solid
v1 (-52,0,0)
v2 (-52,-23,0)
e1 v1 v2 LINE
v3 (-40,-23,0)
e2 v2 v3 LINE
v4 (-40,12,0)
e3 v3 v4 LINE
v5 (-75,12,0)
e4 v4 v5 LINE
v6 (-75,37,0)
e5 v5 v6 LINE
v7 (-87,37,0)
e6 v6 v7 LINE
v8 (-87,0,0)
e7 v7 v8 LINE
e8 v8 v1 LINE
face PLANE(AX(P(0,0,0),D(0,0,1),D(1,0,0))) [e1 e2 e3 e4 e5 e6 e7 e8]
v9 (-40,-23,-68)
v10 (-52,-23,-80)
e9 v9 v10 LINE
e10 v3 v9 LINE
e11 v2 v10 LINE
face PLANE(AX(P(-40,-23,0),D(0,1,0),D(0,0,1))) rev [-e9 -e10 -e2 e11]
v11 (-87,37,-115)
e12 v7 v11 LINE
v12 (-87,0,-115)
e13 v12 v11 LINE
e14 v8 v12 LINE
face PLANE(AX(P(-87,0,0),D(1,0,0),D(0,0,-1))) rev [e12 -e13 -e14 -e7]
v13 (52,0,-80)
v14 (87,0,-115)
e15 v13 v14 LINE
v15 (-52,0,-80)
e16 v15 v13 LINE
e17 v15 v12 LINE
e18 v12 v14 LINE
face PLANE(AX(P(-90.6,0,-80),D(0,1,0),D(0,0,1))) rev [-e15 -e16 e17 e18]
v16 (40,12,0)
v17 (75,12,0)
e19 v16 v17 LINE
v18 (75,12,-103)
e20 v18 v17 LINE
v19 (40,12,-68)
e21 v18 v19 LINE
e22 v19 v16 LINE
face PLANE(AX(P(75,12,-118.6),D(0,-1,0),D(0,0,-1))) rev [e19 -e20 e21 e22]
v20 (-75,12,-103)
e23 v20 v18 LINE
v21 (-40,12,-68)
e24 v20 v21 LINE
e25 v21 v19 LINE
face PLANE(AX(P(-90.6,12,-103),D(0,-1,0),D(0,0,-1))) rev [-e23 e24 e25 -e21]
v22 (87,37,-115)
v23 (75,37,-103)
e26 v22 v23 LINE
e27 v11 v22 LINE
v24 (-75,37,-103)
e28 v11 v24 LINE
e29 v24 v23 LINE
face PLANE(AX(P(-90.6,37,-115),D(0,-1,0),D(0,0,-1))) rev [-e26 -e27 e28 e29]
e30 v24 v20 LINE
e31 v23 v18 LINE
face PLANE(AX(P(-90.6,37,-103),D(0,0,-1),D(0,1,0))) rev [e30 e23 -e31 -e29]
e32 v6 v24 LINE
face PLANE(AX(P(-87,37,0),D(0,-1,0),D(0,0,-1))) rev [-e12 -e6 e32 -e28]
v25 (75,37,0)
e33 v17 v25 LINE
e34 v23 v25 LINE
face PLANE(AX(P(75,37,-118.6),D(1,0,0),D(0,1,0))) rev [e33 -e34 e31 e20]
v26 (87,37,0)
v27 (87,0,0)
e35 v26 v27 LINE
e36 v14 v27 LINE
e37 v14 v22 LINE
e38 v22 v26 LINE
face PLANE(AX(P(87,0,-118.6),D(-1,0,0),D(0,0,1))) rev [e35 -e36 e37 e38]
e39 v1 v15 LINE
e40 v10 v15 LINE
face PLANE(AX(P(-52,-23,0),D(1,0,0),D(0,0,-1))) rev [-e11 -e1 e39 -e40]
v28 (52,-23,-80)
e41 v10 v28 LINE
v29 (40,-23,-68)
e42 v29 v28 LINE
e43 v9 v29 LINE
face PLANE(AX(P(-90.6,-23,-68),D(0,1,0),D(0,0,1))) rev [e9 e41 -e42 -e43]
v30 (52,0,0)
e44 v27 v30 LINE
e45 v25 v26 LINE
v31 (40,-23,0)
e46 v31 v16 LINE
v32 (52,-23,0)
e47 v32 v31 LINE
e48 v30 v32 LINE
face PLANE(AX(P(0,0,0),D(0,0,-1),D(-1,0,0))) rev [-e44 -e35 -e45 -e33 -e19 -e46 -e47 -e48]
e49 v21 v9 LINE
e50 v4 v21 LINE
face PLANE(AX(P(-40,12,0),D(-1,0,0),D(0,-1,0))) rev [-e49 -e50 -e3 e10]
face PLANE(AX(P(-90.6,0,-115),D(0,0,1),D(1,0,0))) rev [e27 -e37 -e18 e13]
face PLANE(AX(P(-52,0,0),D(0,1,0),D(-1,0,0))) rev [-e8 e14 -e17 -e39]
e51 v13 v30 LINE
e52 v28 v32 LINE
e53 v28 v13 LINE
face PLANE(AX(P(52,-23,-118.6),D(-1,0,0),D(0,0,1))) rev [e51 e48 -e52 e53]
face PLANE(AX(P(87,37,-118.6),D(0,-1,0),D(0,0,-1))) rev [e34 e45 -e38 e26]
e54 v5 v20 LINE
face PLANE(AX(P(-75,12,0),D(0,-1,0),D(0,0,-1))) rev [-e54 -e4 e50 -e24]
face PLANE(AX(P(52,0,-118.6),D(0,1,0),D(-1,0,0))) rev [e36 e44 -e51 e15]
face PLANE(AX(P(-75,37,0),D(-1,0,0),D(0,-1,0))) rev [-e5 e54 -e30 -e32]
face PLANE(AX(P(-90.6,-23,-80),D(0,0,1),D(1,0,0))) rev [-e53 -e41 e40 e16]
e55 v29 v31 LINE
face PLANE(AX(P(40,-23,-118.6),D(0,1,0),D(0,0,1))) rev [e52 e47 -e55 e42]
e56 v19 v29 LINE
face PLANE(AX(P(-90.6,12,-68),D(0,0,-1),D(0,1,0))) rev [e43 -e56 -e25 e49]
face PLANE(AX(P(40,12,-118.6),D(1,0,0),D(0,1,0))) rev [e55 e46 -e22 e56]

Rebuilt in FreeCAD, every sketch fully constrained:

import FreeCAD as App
import Part
import Sketcher
from FreeCAD import Vector
Q = App.Units.Quantity


def add_polygon(sketch, points):
    """Adds a closed chain of lines whose ends are joined by coincident constraints."""
    first, n = sketch.GeometryCount, len(points)
    for a, b in zip(points, points[1:] + points[:1]):
        sketch.addGeometry(Part.LineSegment(App.Vector(*a, 0), App.Vector(*b, 0)), False)
    for i in range(n):
        sketch.addConstraint(Sketcher.Constraint("Coincident", first + i, 2, first + (i + 1) % n, 1))

doc = App.newDocument("Part")
body = doc.addObject("PartDesign::Body", "Body")

sketch1 = body.newObject("Sketcher::SketchObject", "Sketch")
sketch1.AttachmentSupport = (doc.getObject("XY_Plane"), [""])
sketch1.MapMode = "FlatFace"
add_polygon(sketch1, [(-87, 0), (-52, 0), (-52, -23), (-40, -23), (-40, 12), (-75, 12), (-75, 37), (-87, 37)])
sketch1.addConstraint(Sketcher.Constraint("Horizontal", 0))
sketch1.addConstraint(Sketcher.Constraint("Vertical", 1))
sketch1.addConstraint(Sketcher.Constraint("Horizontal", 2))
sketch1.addConstraint(Sketcher.Constraint("Vertical", 3))
sketch1.addConstraint(Sketcher.Constraint("Horizontal", 4))
sketch1.addConstraint(Sketcher.Constraint("Vertical", 5))
sketch1.addConstraint(Sketcher.Constraint("Horizontal", 6))
sketch1.addConstraint(Sketcher.Constraint("Vertical", 7))
sketch1.addConstraint(Sketcher.Constraint("PointOnObject", 0, 2, -1))
sketch1.addConstraint(Sketcher.Constraint("Equal", 0, 4))
sketch1.addConstraint(Sketcher.Constraint("Equal", 4, 3))
sketch1.addConstraint(Sketcher.Constraint("DistanceX", 0, 1, 0, 2, Q("35 mm")))
sketch1.addConstraint(Sketcher.Constraint("DistanceX", 2, 1, 2, 2, Q("12 mm")))
sketch1.addConstraint(Sketcher.Constraint("DistanceY", 1, 2, 1, 1, Q("23 mm")))
sketch1.addConstraint(Sketcher.Constraint("DistanceY", 5, 1, 5, 2, Q("25 mm")))
sketch1.addConstraint(Sketcher.Constraint("DistanceX", 0, 2, -1, 1, Q("52 mm")))

sketch2 = body.newObject("Sketcher::SketchObject", "Sketch001")
sketch2.AttachmentSupport = (doc.getObject("XZ_Plane"), [""])
sketch2.MapMode = "FlatFace"
sketch2.addGeometry(Part.LineSegment(Vector(-52, 0, 0), Vector(-52, -80, 0)), False)
sketch2.addGeometry(Part.LineSegment(Vector(-52, -80, 0), Vector(52, -80, 0)), False)
sketch2.addGeometry(Part.LineSegment(Vector(52, -80, 0), Vector(52, 0, 0)), False)
sketch2.addConstraint(Sketcher.Constraint("Coincident", 0, 2, 1, 1))
sketch2.addConstraint(Sketcher.Constraint("Coincident", 1, 2, 2, 1))
sketch2.addConstraint(Sketcher.Constraint("Vertical", 0))
sketch2.addConstraint(Sketcher.Constraint("Horizontal", 1))
sketch2.addConstraint(Sketcher.Constraint("Vertical", 2))
sketch2.addConstraint(Sketcher.Constraint("Symmetric", 0, 1, 2, 2, -1, 1))
sketch2.addConstraint(Sketcher.Constraint("PointOnObject", 0, 1, -1))
sketch2.addConstraint(Sketcher.Constraint("DistanceX", 1, 1, 1, 2, Q("104 mm")))
sketch2.addConstraint(Sketcher.Constraint("DistanceY", 0, 2, 0, 1, Q("80 mm")))
doc.recompute()

additivepipe = body.newObject("PartDesign::AdditivePipe", "AdditivePipe")
additivepipe.Profile = sketch1
additivepipe.Spine = (sketch2, ["Edge1", "Edge2", "Edge3"])
additivepipe.Transition = "Right corner"

doc.recompute()
